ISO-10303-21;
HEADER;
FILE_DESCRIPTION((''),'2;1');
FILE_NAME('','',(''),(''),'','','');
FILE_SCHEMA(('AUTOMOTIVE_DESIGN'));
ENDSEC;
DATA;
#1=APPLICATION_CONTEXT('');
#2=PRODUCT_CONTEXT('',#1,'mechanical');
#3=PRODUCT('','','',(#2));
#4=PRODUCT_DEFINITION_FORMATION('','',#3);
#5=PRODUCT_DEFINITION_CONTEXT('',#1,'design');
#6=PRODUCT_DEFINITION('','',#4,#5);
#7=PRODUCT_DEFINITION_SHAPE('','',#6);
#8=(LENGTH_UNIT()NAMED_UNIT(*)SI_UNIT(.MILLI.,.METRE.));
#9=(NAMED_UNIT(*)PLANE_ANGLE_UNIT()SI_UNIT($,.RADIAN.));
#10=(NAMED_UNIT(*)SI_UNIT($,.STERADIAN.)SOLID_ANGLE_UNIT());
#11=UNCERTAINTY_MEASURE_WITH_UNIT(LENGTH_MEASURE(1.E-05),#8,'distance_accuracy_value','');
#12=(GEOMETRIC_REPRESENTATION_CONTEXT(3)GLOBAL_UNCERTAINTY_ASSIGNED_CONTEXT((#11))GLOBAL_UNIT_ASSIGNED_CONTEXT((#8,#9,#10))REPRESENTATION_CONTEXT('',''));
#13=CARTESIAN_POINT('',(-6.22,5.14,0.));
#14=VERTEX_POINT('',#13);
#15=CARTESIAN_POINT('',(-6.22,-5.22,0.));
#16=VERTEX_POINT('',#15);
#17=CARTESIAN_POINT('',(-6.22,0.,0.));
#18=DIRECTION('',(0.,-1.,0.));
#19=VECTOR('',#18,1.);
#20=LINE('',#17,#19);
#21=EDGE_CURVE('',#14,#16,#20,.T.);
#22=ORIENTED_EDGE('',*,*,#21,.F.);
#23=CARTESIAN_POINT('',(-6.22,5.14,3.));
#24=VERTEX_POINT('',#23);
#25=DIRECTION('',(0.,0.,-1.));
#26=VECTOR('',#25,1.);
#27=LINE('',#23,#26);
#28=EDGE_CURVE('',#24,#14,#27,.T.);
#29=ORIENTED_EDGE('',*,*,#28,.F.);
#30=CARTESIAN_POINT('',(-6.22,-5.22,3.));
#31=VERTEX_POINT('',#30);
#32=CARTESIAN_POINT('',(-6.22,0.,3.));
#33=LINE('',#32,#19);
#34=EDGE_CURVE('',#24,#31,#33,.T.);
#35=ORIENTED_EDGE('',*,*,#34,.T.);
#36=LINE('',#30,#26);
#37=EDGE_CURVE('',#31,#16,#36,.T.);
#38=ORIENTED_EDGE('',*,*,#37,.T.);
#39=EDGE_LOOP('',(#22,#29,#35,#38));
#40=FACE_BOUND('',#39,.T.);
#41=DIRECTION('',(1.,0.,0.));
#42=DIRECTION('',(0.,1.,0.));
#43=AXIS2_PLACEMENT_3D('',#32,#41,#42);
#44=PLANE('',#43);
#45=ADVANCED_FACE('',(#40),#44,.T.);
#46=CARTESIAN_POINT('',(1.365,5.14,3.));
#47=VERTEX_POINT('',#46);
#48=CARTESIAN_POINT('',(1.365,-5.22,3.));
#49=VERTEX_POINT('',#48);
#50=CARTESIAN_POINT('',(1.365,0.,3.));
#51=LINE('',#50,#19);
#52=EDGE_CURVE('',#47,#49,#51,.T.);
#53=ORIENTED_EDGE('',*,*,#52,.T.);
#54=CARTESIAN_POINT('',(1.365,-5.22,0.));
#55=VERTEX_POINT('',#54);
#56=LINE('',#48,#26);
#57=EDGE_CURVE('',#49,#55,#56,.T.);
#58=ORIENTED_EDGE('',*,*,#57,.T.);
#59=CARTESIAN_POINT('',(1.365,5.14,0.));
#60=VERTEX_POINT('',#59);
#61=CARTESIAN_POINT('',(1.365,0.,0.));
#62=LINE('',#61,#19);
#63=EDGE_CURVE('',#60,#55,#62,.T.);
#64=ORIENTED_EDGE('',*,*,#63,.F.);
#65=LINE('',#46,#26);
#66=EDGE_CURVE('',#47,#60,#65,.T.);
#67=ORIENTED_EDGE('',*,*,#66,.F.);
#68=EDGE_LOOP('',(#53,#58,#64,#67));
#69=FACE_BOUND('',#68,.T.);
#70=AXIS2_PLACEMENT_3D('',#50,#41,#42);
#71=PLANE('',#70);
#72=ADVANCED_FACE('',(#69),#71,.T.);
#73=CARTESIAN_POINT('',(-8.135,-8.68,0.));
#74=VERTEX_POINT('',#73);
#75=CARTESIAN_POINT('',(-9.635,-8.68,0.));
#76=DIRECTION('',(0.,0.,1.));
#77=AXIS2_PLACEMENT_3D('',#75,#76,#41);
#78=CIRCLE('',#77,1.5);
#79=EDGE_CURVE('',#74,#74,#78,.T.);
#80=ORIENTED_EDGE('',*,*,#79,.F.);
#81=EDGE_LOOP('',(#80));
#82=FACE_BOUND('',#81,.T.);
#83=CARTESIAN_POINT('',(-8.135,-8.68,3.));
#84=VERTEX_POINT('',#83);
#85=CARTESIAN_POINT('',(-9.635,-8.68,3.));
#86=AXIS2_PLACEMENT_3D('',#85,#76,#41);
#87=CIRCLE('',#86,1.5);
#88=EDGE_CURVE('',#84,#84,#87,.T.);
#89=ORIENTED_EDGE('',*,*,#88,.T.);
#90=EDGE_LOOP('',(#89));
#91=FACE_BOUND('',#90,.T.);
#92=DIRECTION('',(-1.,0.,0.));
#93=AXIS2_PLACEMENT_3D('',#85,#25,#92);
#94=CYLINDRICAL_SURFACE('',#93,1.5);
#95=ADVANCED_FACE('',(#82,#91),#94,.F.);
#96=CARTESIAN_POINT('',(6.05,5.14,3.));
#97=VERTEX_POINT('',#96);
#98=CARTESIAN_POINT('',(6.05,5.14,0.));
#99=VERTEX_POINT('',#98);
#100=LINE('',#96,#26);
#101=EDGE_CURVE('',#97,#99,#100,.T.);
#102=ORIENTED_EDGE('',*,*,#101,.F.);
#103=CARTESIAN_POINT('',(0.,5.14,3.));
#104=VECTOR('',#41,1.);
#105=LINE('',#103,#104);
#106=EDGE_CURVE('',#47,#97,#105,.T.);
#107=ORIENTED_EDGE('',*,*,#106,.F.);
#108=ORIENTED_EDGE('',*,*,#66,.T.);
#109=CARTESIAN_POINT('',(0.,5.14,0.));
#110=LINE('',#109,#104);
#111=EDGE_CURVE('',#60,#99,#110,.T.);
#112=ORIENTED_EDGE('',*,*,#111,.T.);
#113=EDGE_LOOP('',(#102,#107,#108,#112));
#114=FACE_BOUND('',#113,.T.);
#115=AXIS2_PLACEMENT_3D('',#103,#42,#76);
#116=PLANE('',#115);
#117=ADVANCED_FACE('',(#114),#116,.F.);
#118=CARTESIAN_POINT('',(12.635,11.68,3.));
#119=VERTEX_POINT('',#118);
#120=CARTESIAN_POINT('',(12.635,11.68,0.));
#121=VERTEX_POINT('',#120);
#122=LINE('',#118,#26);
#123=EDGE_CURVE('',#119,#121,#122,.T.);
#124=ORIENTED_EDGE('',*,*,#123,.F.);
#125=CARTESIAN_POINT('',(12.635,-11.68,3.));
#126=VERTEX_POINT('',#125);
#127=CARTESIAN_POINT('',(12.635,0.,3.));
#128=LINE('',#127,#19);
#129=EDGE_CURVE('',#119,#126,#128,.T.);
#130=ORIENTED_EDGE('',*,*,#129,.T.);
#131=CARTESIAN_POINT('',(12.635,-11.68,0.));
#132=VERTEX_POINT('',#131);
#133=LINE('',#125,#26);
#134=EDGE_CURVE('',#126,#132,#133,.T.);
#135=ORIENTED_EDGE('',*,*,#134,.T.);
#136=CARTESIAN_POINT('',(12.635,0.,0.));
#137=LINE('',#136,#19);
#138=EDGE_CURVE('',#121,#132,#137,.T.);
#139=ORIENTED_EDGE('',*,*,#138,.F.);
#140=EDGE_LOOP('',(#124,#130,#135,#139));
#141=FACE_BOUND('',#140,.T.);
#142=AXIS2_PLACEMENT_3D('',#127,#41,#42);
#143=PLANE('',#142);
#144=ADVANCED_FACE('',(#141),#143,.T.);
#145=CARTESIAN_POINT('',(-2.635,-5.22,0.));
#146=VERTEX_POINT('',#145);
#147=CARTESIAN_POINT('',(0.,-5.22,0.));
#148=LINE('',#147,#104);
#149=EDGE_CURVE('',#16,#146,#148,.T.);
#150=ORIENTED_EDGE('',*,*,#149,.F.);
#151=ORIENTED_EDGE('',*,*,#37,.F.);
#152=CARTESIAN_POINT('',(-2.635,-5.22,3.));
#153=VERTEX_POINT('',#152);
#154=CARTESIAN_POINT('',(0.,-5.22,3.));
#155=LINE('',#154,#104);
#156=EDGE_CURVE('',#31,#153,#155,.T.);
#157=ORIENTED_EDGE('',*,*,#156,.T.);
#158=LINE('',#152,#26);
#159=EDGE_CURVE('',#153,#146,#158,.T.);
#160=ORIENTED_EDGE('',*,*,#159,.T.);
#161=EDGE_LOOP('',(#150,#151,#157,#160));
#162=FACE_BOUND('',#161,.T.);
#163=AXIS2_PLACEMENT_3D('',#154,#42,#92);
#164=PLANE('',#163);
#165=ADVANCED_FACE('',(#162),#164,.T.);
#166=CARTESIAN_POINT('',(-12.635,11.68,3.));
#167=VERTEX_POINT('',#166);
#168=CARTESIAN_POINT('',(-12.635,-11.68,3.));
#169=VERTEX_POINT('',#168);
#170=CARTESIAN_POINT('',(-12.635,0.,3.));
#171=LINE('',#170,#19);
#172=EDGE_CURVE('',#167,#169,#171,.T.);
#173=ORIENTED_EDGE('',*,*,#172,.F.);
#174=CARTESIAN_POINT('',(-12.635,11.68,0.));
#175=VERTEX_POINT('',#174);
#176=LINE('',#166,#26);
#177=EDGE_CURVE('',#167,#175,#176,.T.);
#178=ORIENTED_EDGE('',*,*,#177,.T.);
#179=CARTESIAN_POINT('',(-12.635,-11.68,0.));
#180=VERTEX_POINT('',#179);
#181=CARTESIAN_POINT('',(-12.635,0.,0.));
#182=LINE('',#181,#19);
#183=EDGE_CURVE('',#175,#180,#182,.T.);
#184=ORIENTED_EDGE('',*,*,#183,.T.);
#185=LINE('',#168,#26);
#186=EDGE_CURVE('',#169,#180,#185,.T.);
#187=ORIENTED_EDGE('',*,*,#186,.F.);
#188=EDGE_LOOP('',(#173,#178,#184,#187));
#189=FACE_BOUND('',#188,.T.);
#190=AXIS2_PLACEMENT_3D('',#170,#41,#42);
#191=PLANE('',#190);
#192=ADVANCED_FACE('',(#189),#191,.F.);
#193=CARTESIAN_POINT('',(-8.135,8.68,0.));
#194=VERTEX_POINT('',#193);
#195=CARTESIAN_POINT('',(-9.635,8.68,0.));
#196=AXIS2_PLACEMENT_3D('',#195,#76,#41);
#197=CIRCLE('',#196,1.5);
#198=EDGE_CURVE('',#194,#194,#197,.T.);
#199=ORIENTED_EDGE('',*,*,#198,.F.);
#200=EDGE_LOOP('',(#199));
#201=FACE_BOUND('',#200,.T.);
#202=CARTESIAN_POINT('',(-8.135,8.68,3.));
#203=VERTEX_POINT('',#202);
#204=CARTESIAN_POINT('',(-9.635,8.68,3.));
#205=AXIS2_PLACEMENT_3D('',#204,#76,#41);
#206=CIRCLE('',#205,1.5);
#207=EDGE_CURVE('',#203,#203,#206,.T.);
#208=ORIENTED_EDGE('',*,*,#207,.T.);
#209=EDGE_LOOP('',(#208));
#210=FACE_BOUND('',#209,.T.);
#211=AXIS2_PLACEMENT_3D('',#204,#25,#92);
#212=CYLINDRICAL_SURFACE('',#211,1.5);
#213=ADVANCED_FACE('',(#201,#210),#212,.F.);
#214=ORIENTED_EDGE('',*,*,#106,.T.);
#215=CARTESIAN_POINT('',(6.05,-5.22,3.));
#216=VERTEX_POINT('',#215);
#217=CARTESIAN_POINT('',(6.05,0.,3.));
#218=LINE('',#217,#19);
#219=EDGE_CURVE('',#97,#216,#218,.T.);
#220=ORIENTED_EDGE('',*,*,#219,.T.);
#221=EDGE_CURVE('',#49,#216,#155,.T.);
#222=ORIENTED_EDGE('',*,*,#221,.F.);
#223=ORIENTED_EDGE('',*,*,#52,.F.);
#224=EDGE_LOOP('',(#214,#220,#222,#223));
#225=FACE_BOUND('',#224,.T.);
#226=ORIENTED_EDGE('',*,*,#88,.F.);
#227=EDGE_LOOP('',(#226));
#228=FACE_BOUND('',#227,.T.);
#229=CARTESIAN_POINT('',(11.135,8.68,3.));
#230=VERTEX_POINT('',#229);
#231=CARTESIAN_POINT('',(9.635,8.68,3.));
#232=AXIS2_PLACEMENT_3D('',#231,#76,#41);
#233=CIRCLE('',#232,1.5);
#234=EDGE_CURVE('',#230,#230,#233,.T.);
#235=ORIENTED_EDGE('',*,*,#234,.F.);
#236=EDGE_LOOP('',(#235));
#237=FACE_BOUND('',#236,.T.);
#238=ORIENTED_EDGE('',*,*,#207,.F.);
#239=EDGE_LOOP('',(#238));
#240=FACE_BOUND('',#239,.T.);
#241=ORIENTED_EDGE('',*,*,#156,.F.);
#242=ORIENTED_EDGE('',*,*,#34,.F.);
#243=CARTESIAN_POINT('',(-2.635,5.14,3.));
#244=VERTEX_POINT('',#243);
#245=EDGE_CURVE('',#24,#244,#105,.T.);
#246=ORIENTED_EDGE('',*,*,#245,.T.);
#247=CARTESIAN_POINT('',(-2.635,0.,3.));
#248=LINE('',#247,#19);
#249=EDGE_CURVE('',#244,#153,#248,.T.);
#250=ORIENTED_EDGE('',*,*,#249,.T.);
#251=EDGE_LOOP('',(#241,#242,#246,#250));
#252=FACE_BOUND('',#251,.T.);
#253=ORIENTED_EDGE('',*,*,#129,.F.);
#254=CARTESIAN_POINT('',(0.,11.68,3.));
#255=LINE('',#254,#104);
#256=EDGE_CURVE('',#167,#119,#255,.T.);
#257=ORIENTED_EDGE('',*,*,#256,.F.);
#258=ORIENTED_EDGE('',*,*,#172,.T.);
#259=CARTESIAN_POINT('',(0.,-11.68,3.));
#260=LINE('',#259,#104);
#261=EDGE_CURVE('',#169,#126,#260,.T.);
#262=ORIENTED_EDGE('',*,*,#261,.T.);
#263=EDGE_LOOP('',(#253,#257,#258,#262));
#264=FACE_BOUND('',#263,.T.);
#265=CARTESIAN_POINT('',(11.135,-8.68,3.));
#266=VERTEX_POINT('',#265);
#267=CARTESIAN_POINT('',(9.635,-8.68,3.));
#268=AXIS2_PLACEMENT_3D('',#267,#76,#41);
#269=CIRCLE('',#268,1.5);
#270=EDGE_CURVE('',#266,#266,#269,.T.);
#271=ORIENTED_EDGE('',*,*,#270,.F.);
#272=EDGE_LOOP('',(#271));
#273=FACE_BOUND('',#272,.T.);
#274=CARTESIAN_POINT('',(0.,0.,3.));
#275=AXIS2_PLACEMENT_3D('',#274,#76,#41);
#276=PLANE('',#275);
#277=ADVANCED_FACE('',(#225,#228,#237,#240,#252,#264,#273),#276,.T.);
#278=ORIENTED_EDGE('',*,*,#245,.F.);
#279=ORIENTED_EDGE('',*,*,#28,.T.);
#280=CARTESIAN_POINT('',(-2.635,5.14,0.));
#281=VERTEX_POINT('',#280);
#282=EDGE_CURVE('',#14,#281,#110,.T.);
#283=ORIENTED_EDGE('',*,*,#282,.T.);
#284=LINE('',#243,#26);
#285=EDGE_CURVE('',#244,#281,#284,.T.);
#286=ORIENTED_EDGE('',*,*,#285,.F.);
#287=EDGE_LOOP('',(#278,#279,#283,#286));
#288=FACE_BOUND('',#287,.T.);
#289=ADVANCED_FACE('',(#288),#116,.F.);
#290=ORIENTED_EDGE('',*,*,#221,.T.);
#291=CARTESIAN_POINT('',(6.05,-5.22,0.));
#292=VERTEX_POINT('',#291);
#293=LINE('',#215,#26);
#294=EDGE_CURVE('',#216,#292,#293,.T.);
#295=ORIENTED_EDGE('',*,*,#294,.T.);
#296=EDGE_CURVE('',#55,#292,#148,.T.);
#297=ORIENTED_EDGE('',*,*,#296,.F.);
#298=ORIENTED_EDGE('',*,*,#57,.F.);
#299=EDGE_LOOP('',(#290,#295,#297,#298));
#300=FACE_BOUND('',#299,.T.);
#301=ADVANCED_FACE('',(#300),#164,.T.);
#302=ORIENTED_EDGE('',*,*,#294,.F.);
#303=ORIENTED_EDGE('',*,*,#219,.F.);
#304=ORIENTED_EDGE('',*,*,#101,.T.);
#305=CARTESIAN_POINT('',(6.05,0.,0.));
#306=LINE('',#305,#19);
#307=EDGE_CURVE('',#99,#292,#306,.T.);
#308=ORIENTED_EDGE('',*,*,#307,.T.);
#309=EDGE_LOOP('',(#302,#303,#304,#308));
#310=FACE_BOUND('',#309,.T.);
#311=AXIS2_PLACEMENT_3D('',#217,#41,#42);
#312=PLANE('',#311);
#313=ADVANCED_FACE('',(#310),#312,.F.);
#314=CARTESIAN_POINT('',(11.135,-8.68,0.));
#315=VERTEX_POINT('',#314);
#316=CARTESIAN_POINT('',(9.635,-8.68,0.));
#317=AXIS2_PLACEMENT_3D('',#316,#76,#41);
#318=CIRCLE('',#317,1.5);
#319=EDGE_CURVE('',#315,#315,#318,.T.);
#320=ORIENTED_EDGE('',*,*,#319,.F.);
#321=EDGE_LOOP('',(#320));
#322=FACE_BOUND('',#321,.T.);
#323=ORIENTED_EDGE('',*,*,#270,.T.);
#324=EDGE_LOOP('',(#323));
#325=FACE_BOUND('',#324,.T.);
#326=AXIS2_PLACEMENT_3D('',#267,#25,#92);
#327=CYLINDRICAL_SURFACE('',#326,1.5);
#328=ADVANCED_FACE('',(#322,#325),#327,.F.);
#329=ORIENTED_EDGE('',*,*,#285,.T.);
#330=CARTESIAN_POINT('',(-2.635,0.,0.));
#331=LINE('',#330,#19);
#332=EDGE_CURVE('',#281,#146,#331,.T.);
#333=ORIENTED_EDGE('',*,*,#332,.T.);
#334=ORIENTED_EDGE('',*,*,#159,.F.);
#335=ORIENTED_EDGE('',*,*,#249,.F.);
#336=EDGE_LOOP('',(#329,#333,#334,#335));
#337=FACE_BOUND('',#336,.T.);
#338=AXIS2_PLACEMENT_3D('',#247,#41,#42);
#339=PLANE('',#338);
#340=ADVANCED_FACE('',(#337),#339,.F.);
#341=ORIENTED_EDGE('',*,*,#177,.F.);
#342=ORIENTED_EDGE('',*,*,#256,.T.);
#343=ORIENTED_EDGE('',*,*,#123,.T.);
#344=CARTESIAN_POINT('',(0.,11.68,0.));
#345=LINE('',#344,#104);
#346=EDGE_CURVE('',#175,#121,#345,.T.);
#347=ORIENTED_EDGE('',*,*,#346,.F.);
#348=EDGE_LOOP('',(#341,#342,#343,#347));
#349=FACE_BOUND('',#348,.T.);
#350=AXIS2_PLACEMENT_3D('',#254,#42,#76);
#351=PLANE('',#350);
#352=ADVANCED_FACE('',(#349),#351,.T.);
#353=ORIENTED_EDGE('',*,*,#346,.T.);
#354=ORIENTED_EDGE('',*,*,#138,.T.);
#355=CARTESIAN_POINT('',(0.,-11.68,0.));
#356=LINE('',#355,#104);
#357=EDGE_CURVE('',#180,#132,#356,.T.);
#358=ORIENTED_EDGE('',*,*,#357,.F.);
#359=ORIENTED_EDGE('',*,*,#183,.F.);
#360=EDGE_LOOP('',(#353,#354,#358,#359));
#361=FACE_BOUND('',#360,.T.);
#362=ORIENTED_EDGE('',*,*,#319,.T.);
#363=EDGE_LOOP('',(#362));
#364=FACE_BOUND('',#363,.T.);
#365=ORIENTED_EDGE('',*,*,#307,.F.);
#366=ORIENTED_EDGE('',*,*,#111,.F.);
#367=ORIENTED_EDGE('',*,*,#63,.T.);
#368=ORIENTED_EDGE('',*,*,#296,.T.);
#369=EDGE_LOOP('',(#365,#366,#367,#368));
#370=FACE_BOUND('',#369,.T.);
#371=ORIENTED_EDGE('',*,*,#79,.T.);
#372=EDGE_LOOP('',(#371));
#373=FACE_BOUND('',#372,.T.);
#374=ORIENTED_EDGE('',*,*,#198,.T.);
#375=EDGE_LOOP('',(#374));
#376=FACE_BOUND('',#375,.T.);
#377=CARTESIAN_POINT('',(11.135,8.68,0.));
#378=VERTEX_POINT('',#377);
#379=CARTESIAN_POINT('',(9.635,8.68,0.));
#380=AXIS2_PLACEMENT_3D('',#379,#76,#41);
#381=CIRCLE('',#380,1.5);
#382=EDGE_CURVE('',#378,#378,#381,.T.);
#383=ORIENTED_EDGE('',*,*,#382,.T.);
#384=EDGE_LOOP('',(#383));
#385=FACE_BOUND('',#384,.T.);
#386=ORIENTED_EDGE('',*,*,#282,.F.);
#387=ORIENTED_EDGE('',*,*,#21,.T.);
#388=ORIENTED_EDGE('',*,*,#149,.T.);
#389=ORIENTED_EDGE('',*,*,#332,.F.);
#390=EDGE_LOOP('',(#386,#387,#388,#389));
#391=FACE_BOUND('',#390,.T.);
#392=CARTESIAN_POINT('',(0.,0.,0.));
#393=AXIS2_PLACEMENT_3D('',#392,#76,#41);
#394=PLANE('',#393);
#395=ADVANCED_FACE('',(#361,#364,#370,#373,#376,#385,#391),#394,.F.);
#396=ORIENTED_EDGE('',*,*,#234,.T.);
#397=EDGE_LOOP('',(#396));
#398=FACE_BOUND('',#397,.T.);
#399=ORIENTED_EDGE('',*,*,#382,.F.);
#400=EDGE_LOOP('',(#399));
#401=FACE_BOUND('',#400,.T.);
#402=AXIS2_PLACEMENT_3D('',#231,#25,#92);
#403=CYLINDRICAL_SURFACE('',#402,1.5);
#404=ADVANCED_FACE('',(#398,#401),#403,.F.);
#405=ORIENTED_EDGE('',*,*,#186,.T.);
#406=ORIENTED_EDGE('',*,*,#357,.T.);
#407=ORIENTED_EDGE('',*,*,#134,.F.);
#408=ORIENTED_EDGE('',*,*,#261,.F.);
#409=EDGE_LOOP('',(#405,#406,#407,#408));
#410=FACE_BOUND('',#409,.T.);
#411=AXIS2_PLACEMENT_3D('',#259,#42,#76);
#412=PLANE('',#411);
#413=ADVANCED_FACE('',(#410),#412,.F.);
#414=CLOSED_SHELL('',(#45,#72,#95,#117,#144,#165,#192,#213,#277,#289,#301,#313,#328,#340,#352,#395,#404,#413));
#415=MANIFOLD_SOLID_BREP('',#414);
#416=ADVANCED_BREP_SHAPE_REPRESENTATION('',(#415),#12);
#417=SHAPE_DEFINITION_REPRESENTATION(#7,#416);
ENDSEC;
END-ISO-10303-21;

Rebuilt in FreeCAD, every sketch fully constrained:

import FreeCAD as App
import Part
import Sketcher

V = App.Vector

doc = App.newDocument("Part")
body = doc.addObject("PartDesign::Body", "Body")

# Sketch on XY plane
sketch1 = doc.addObject("Sketcher::SketchObject", "Sketch")
body.addObject(sketch1)
sketch1.AttachmentSupport = (doc.XY_Plane, [""])
sketch1.MapMode = "FlatFace"
sketch1.addGeometry(Part.LineSegment(V(-12.6, 11.7, 0), V(-12.6, -11.7, 0)), False)
sketch1.addGeometry(Part.LineSegment(V(-12.6, -11.7, 0), V(12.6, -11.7, 0)), False)
sketch1.addGeometry(Part.LineSegment(V(12.6, -11.7, 0), V(12.6, 11.7, 0)), False)
sketch1.addGeometry(Part.LineSegment(V(12.6, 11.7, 0), V(-12.6, 11.7, 0)), False)
sketch1.addGeometry(Part.Circle(V(-9.6, -8.7, 0), V(0, 0, 1), 1.5), False)
sketch1.addGeometry(Part.LineSegment(V(-2.6, -5.2, 0), V(-6.2, -5.2, 0)), False)
sketch1.addGeometry(Part.LineSegment(V(-6.2, -5.2, 0), V(-6.2, 5.1, 0)), False)
sketch1.addGeometry(Part.LineSegment(V(-6.2, 5.1, 0), V(-2.6, 5.1, 0)), False)
sketch1.addGeometry(Part.LineSegment(V(-2.6, 5.1, 0), V(-2.6, -5.2, 0)), False)
sketch1.addGeometry(Part.LineSegment(V(6, -5.2, 0), V(1.4, -5.2, 0)), False)
sketch1.addGeometry(Part.LineSegment(V(1.4, -5.2, 0), V(1.4, 5.1, 0)), False)
sketch1.addGeometry(Part.LineSegment(V(1.4, 5.1, 0), V(6, 5.1, 0)), False)
sketch1.addGeometry(Part.LineSegment(V(6, 5.1, 0), V(6, -5.2, 0)), False)
sketch1.addGeometry(Part.Circle(V(9.6, -8.7, 0), V(0, 0, 1), 1.5), False)
sketch1.addGeometry(Part.Circle(V(-9.6, 8.7, 0), V(0, 0, 1), 1.5), False)
sketch1.addGeometry(Part.Circle(V(9.6, 8.7, 0), V(0, 0, 1), 1.5), False)
sketch1.addConstraint(Sketcher.Constraint("Coincident", 0, 2, 1, 1))
sketch1.addConstraint(Sketcher.Constraint("Coincident", 1, 2, 2, 1))
sketch1.addConstraint(Sketcher.Constraint("Coincident", 2, 2, 3, 1))
sketch1.addConstraint(Sketcher.Constraint("Coincident", 3, 2, 0, 1))
sketch1.addConstraint(Sketcher.Constraint("Coincident", 5, 2, 6, 1))
sketch1.addConstraint(Sketcher.Constraint("Coincident", 6, 2, 7, 1))
sketch1.addConstraint(Sketcher.Constraint("Coincident", 7, 2, 8, 1))
sketch1.addConstraint(Sketcher.Constraint("Coincident", 8, 2, 5, 1))
sketch1.addConstraint(Sketcher.Constraint("Coincident", 9, 2, 10, 1))
sketch1.addConstraint(Sketcher.Constraint("Coincident", 10, 2, 11, 1))
sketch1.addConstraint(Sketcher.Constraint("Coincident", 11, 2, 12, 1))
sketch1.addConstraint(Sketcher.Constraint("Coincident", 12, 2, 9, 1))
sketch1.addConstraint(Sketcher.Constraint("Vertical", 0))
sketch1.addConstraint(Sketcher.Constraint("Horizontal", 1))
sketch1.addConstraint(Sketcher.Constraint("Vertical", 2))
sketch1.addConstraint(Sketcher.Constraint("Horizontal", 3))
sketch1.addConstraint(Sketcher.Constraint("Horizontal", 5))
sketch1.addConstraint(Sketcher.Constraint("Vertical", 6))
sketch1.addConstraint(Sketcher.Constraint("Horizontal", 7))
sketch1.addConstraint(Sketcher.Constraint("Vertical", 8))
sketch1.addConstraint(Sketcher.Constraint("Horizontal", 9))
sketch1.addConstraint(Sketcher.Constraint("Vertical", 10))
sketch1.addConstraint(Sketcher.Constraint("Horizontal", 11))
sketch1.addConstraint(Sketcher.Constraint("Vertical", 12))
sketch1.addConstraint(Sketcher.Constraint("Equal", 4, 13))
sketch1.addConstraint(Sketcher.Constraint("Equal", 13, 14))
sketch1.addConstraint(Sketcher.Constraint("Equal", 14, 15))
sketch1.addConstraint(Sketcher.Constraint("Symmetric", 13, 3, 14, 3, -1, 1))
sketch1.addConstraint(Sketcher.Constraint("Symmetric", 4, 3, 15, 3, -1, 1))
sketch1.addConstraint(Sketcher.Constraint("Symmetric", 0, 2, 2, 2, -1, 1))
sketch1.addConstraint(Sketcher.Constraint("Symmetric", 4, 3, 13, 3, -2))
sketch1.addConstraint(Sketcher.Constraint("Horizontal", 8, 2, 9, 2))
sketch1.addConstraint(Sketcher.Constraint("Horizontal", 7, 2, 10, 2))
sketch1.addConstraint(Sketcher.Constraint("Diameter", 4, 3.0))
sketch1.addConstraint(Sketcher.Constraint("DistanceX", 0, 2, 4, 3, 3.0))
sketch1.addConstraint(Sketcher.Constraint("DistanceY", 0, 2, 4, 3, 3.0))
sketch1.addConstraint(Sketcher.Constraint("DistanceX", 14, 3, 7, 2, 7.0))
sketch1.addConstraint(Sketcher.Constraint("DistanceX", 8, 2, 9, 2, 4.0))
sketch1.addConstraint(Sketcher.Constraint("DistanceX", 1, 1, 1, 2, 25.27))
sketch1.addConstraint(Sketcher.Constraint("DistanceY", 0, 2, 0, 1, 23.36))
sketch1.addConstraint(Sketcher.Constraint("DistanceY", 6, 1, 6, 2, 10.36))
sketch1.addConstraint(Sketcher.Constraint("DistanceY", 5, 2, 14, 3, 13.9))
sketch1.addConstraint(Sketcher.Constraint("DistanceX", 5, 2, 5, 1, 3.585))
sketch1.addConstraint(Sketcher.Constraint("DistanceX", 9, 2, 9, 1, 4.685))
pad1 = doc.addObject("PartDesign::Pad", "Pad")
body.addObject(pad1)
pad1.Profile = sketch1
pad1.Length = 3

doc.recompute()
